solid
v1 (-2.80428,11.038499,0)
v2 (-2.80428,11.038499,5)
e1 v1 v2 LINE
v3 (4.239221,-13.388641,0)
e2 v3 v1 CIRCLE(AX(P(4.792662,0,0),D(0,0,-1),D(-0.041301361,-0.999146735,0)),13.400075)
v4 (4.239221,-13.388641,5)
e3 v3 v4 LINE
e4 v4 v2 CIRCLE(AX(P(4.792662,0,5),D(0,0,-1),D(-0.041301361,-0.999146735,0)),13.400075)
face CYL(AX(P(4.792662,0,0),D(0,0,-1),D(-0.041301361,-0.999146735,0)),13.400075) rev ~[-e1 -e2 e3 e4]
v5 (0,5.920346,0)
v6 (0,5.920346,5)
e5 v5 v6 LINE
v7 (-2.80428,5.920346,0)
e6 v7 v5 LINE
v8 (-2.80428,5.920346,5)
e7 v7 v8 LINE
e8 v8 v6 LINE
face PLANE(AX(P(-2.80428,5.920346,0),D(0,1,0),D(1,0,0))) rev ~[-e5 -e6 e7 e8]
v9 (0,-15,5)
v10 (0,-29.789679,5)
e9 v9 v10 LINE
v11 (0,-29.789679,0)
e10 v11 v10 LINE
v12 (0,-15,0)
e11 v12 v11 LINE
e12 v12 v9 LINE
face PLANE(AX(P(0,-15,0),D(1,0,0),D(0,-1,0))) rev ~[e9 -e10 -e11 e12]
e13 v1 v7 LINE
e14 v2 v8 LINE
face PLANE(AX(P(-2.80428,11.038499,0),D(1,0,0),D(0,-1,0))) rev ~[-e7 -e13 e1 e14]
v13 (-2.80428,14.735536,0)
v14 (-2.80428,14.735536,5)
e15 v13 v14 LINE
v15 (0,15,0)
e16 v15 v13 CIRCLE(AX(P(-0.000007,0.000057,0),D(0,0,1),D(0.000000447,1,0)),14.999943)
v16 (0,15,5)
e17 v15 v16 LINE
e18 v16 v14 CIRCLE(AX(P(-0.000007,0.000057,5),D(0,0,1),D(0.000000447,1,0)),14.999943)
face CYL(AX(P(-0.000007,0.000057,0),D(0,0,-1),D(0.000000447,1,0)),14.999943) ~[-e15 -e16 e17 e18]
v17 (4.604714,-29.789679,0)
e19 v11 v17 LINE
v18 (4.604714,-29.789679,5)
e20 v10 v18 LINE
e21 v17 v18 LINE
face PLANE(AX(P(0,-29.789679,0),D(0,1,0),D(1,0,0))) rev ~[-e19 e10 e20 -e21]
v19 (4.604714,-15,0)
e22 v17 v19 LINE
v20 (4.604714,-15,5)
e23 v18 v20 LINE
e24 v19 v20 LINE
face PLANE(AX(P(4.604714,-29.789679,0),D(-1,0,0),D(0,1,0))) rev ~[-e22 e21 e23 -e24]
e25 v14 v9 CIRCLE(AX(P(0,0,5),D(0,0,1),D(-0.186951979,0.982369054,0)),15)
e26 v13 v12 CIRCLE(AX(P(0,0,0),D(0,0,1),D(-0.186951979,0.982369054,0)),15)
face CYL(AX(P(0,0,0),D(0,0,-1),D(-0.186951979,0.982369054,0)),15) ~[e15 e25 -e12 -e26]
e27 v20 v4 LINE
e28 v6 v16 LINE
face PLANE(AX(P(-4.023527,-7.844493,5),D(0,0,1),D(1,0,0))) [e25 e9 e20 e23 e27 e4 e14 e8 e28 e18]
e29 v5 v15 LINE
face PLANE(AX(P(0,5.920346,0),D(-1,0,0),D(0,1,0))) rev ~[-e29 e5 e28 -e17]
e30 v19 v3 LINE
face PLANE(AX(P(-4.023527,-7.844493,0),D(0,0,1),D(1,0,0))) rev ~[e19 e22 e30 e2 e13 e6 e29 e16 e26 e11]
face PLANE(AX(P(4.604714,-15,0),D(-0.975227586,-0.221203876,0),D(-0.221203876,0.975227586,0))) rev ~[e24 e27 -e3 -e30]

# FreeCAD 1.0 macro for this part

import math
import FreeCAD as App
import Part
import Sketcher

doc = App.newDocument("Part")
body = doc.addObject("PartDesign::Body", "Body")

sketch1 = body.newObject("Sketcher::SketchObject", "Sketch")
sketch1.AttachmentSupport = (doc.getObject("XY_Plane"), [""])
sketch1.MapMode = "FlatFace"
sketch1.addGeometry([
    Part.ArcOfCircle(Part.Circle(App.Vector(0, 0, 0), App.Vector(0, 0, 1), 15), math.radians(100.774958), math.radians(270.000001)),
    Part.LineSegment(App.Vector(0, -15, 0), App.Vector(0, -29.789679, 0)),
    Part.LineSegment(App.Vector(0, -29.789679, 0), App.Vector(4.604714, -29.789679, 0)),
    Part.LineSegment(App.Vector(4.604714, -29.789679, 0), App.Vector(4.604714, -15, 0)),
    Part.LineSegment(App.Vector(4.604714, -15, 0), App.Vector(4.239221, -13.388641, 0)),
    Part.ArcOfCircle(Part.Circle(App.Vector(4.792662, 0, 0), App.Vector(0, 0, 1), 13.400075), math.radians(124.536619), math.radians(267.632933)),
    Part.LineSegment(App.Vector(-2.80428, 11.038499, 0), App.Vector(-2.80428, 5.920346, 0)),
    Part.LineSegment(App.Vector(-2.80428, 5.920346, 0), App.Vector(0, 5.920346, 0)),
    Part.LineSegment(App.Vector(0, 5.920346, 0), App.Vector(0, 15, 0)),
    Part.ArcOfCircle(Part.Circle(App.Vector(-0.000007, 0.000057, 0), App.Vector(0, 0, 1), 14.999943), math.radians(89.999974), math.radians(100.774975)),
], False)
sketch1.addConstraint([
    Sketcher.Constraint("Coincident", 0, 2, 1, 1),
    Sketcher.Constraint("Coincident", 1, 2, 2, 1),
    Sketcher.Constraint("Coincident", 2, 2, 3, 1),
    Sketcher.Constraint("Coincident", 3, 2, 4, 1),
    Sketcher.Constraint("Coincident", 4, 2, 5, 2),
    Sketcher.Constraint("Coincident", 5, 1, 6, 1),
    Sketcher.Constraint("Coincident", 6, 2, 7, 1),
    Sketcher.Constraint("Coincident", 7, 2, 8, 1),
    Sketcher.Constraint("Coincident", 8, 2, 9, 1),
    Sketcher.Constraint("Coincident", 9, 2, 0, 1),
    Sketcher.Constraint("Vertical", 1),
    Sketcher.Constraint("Horizontal", 2),
    Sketcher.Constraint("Vertical", 3),
    Sketcher.Constraint("Vertical", 6),
    Sketcher.Constraint("Horizontal", 7),
    Sketcher.Constraint("Vertical", 8),
    Sketcher.Constraint("Coincident", 0, 3, -1, 1),
    Sketcher.Constraint("PointOnObject", 5, 3, -1),
    Sketcher.Constraint("PointOnObject", 0, 2, -2),
    Sketcher.Constraint("PointOnObject", 7, 2, -2),
    Sketcher.Constraint("Radius", 0, 15.0),
    Sketcher.Constraint("DistanceY", 3, 2, -1, 1, 15.0),
    Sketcher.Constraint("DistanceY", -1, 1, 8, 2, 15.0),
    Sketcher.Constraint("Radius", 5, 13.400075),
    Sketcher.Constraint("Radius", 9, 14.999943),
    Sketcher.Constraint("DistanceX", 7, 1, 7, 2, 2.80428),
    Sketcher.Constraint("DistanceY", 1, 2, 1, 1, 14.789679),
    Sketcher.Constraint("DistanceY", -1, 1, 5, 1, 11.038499),
    Sketcher.Constraint("DistanceX", 5, 1, 4, 2, 7.043501),
    Sketcher.Constraint("Distance", 4, 1.65229),
    Sketcher.Constraint("DistanceY", 6, 2, 6, 1, 5.118153),
    Sketcher.Constraint("DistanceX", 9, 2, -1, 1, 2.80428),
])
pad1 = body.newObject("PartDesign::Pad", "Pad")
pad1.Profile = sketch1
pad1.Length = 5

doc.recompute()
